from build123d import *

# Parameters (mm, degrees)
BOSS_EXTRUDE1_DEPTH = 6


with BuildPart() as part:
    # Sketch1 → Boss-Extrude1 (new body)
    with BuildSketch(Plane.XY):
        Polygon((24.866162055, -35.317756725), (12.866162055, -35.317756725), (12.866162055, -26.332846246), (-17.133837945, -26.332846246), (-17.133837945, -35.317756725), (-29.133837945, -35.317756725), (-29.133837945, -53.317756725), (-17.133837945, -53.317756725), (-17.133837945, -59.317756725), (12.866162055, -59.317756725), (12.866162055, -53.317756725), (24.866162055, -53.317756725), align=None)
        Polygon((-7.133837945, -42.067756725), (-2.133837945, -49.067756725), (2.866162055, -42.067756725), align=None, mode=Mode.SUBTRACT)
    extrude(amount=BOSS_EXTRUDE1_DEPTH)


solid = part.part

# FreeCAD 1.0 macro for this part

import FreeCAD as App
import Part
import Sketcher

V = App.Vector
Q = App.Units.Quantity

doc = App.newDocument("Part")
body = doc.addObject("PartDesign::Body", "Body")

sketch1 = body.newObject("Sketcher::SketchObject", "Sketch")
sketch1.AttachmentSupport = (doc.getObject("XY_Plane"), [""])
sketch1.MapMode = "FlatFace"
sketch1.addGeometry(Part.LineSegment(V(25, -35, 0), V(13, -35, 0)), False)
sketch1.addGeometry(Part.LineSegment(V(13, -35, 0), V(13, -26, 0)), False)
sketch1.addGeometry(Part.LineSegment(V(13, -26, 0), V(-17, -26, 0)), False)
sketch1.addGeometry(Part.LineSegment(V(-17, -26, 0), V(-17, -35, 0)), False)
sketch1.addGeometry(Part.LineSegment(V(-17, -35, 0), V(-29, -35, 0)), False)
sketch1.addGeometry(Part.LineSegment(V(-29, -35, 0), V(-29, -53, 0)), False)
sketch1.addGeometry(Part.LineSegment(V(-29, -53, 0), V(-17, -53, 0)), False)
sketch1.addGeometry(Part.LineSegment(V(-17, -53, 0), V(-17, -59, 0)), False)
sketch1.addGeometry(Part.LineSegment(V(-17, -59, 0), V(13, -59, 0)), False)
sketch1.addGeometry(Part.LineSegment(V(13, -59, 0), V(13, -53, 0)), False)
sketch1.addGeometry(Part.LineSegment(V(13, -53, 0), V(25, -53, 0)), False)
sketch1.addGeometry(Part.LineSegment(V(25, -53, 0), V(25, -35, 0)), False)
sketch1.addGeometry(Part.LineSegment(V(-2, -49, 0), V(-7, -42, 0)), False)
sketch1.addGeometry(Part.LineSegment(V(-7, -42, 0), V(3, -42, 0)), False)
sketch1.addGeometry(Part.LineSegment(V(3, -42, 0), V(-2, -49, 0)), False)
sketch1.addConstraint(Sketcher.Constraint("Coincident", 0, 2, 1, 1))
sketch1.addConstraint(Sketcher.Constraint("Coincident", 1, 2, 2, 1))
sketch1.addConstraint(Sketcher.Constraint("Coincident", 2, 2, 3, 1))
sketch1.addConstraint(Sketcher.Constraint("Coincident", 3, 2, 4, 1))
sketch1.addConstraint(Sketcher.Constraint("Coincident", 4, 2, 5, 1))
sketch1.addConstraint(Sketcher.Constraint("Coincident", 5, 2, 6, 1))
sketch1.addConstraint(Sketcher.Constraint("Coincident", 6, 2, 7, 1))
sketch1.addConstraint(Sketcher.Constraint("Coincident", 7, 2, 8, 1))
sketch1.addConstraint(Sketcher.Constraint("Coincident", 8, 2, 9, 1))
sketch1.addConstraint(Sketcher.Constraint("Coincident", 9, 2, 10, 1))
sketch1.addConstraint(Sketcher.Constraint("Coincident", 10, 2, 11, 1))
sketch1.addConstraint(Sketcher.Constraint("Coincident", 11, 2, 0, 1))
sketch1.addConstraint(Sketcher.Constraint("Coincident", 12, 2, 13, 1))
sketch1.addConstraint(Sketcher.Constraint("Coincident", 13, 2, 14, 1))
sketch1.addConstraint(Sketcher.Constraint("Coincident", 14, 2, 12, 1))
sketch1.addConstraint(Sketcher.Constraint("Horizontal", 0))
sketch1.addConstraint(Sketcher.Constraint("Vertical", 1))
sketch1.addConstraint(Sketcher.Constraint("Horizontal", 2))
sketch1.addConstraint(Sketcher.Constraint("Vertical", 3))
sketch1.addConstraint(Sketcher.Constraint("Horizontal", 4))
sketch1.addConstraint(Sketcher.Constraint("Vertical", 5))
sketch1.addConstraint(Sketcher.Constraint("Horizontal", 6))
sketch1.addConstraint(Sketcher.Constraint("Vertical", 7))
sketch1.addConstraint(Sketcher.Constraint("Horizontal", 8))
sketch1.addConstraint(Sketcher.Constraint("Vertical", 9))
sketch1.addConstraint(Sketcher.Constraint("Horizontal", 10))
sketch1.addConstraint(Sketcher.Constraint("Vertical", 11))
sketch1.addConstraint(Sketcher.Constraint("Horizontal", 13))
sketch1.addConstraint(Sketcher.Constraint("Horizontal", 0, 2, 3, 2))
sketch1.addConstraint(Sketcher.Constraint("Horizontal", 6, 2, 9, 2))
sketch1.addConstraint(Sketcher.Constraint("Vertical", 3, 2, 6, 2))
sketch1.addConstraint(Sketcher.Constraint("Vertical", 1, 2, 8, 2))
sketch1.addConstraint(Sketcher.Constraint("Equal", 0, 4))
sketch1.addConstraint(Sketcher.Constraint("Equal", 12, 14))
sketch1.addConstraint(Sketcher.Constraint("DistanceX", 0, 2, 0, 1, Q("12 mm")))
sketch1.addConstraint(Sketcher.Constraint("DistanceX", 2, 2, 2, 1, Q("30 mm")))
sketch1.addConstraint(Sketcher.Constraint("DistanceX", 13, 1, 13, 2, Q("10 mm")))
sketch1.addConstraint(Sketcher.Constraint("DistanceY", 5, 2, 5, 1, Q("18 mm")))
sketch1.addConstraint(Sketcher.Constraint("DistanceY", 7, 2, 7, 1, Q("6 mm")))
sketch1.addConstraint(Sketcher.Constraint("DistanceX", 3, 2, 12, 2, Q("10 mm")))
sketch1.addConstraint(Sketcher.Constraint("DistanceY", 14, 2, 12, 2, Q("7 mm")))
sketch1.addConstraint(Sketcher.Constraint("DistanceY", 12, 2, 3, 2, Q("6.75 mm")))
sketch1.addConstraint(Sketcher.Constraint("DistanceY", 1, 1, 1, 2, Q("8.98491 mm")))
sketch1.addConstraint(Sketcher.Constraint("DistanceX", -1, 1, 0, 2, Q("12.866162 mm")))
sketch1.addConstraint(Sketcher.Constraint("DistanceY", 0, 2, -1, 1, Q("35.317757 mm")))
pad1 = body.newObject("PartDesign::Pad", "Pad")
pad1.Profile = sketch1
pad1.Length = 6

doc.recompute()
